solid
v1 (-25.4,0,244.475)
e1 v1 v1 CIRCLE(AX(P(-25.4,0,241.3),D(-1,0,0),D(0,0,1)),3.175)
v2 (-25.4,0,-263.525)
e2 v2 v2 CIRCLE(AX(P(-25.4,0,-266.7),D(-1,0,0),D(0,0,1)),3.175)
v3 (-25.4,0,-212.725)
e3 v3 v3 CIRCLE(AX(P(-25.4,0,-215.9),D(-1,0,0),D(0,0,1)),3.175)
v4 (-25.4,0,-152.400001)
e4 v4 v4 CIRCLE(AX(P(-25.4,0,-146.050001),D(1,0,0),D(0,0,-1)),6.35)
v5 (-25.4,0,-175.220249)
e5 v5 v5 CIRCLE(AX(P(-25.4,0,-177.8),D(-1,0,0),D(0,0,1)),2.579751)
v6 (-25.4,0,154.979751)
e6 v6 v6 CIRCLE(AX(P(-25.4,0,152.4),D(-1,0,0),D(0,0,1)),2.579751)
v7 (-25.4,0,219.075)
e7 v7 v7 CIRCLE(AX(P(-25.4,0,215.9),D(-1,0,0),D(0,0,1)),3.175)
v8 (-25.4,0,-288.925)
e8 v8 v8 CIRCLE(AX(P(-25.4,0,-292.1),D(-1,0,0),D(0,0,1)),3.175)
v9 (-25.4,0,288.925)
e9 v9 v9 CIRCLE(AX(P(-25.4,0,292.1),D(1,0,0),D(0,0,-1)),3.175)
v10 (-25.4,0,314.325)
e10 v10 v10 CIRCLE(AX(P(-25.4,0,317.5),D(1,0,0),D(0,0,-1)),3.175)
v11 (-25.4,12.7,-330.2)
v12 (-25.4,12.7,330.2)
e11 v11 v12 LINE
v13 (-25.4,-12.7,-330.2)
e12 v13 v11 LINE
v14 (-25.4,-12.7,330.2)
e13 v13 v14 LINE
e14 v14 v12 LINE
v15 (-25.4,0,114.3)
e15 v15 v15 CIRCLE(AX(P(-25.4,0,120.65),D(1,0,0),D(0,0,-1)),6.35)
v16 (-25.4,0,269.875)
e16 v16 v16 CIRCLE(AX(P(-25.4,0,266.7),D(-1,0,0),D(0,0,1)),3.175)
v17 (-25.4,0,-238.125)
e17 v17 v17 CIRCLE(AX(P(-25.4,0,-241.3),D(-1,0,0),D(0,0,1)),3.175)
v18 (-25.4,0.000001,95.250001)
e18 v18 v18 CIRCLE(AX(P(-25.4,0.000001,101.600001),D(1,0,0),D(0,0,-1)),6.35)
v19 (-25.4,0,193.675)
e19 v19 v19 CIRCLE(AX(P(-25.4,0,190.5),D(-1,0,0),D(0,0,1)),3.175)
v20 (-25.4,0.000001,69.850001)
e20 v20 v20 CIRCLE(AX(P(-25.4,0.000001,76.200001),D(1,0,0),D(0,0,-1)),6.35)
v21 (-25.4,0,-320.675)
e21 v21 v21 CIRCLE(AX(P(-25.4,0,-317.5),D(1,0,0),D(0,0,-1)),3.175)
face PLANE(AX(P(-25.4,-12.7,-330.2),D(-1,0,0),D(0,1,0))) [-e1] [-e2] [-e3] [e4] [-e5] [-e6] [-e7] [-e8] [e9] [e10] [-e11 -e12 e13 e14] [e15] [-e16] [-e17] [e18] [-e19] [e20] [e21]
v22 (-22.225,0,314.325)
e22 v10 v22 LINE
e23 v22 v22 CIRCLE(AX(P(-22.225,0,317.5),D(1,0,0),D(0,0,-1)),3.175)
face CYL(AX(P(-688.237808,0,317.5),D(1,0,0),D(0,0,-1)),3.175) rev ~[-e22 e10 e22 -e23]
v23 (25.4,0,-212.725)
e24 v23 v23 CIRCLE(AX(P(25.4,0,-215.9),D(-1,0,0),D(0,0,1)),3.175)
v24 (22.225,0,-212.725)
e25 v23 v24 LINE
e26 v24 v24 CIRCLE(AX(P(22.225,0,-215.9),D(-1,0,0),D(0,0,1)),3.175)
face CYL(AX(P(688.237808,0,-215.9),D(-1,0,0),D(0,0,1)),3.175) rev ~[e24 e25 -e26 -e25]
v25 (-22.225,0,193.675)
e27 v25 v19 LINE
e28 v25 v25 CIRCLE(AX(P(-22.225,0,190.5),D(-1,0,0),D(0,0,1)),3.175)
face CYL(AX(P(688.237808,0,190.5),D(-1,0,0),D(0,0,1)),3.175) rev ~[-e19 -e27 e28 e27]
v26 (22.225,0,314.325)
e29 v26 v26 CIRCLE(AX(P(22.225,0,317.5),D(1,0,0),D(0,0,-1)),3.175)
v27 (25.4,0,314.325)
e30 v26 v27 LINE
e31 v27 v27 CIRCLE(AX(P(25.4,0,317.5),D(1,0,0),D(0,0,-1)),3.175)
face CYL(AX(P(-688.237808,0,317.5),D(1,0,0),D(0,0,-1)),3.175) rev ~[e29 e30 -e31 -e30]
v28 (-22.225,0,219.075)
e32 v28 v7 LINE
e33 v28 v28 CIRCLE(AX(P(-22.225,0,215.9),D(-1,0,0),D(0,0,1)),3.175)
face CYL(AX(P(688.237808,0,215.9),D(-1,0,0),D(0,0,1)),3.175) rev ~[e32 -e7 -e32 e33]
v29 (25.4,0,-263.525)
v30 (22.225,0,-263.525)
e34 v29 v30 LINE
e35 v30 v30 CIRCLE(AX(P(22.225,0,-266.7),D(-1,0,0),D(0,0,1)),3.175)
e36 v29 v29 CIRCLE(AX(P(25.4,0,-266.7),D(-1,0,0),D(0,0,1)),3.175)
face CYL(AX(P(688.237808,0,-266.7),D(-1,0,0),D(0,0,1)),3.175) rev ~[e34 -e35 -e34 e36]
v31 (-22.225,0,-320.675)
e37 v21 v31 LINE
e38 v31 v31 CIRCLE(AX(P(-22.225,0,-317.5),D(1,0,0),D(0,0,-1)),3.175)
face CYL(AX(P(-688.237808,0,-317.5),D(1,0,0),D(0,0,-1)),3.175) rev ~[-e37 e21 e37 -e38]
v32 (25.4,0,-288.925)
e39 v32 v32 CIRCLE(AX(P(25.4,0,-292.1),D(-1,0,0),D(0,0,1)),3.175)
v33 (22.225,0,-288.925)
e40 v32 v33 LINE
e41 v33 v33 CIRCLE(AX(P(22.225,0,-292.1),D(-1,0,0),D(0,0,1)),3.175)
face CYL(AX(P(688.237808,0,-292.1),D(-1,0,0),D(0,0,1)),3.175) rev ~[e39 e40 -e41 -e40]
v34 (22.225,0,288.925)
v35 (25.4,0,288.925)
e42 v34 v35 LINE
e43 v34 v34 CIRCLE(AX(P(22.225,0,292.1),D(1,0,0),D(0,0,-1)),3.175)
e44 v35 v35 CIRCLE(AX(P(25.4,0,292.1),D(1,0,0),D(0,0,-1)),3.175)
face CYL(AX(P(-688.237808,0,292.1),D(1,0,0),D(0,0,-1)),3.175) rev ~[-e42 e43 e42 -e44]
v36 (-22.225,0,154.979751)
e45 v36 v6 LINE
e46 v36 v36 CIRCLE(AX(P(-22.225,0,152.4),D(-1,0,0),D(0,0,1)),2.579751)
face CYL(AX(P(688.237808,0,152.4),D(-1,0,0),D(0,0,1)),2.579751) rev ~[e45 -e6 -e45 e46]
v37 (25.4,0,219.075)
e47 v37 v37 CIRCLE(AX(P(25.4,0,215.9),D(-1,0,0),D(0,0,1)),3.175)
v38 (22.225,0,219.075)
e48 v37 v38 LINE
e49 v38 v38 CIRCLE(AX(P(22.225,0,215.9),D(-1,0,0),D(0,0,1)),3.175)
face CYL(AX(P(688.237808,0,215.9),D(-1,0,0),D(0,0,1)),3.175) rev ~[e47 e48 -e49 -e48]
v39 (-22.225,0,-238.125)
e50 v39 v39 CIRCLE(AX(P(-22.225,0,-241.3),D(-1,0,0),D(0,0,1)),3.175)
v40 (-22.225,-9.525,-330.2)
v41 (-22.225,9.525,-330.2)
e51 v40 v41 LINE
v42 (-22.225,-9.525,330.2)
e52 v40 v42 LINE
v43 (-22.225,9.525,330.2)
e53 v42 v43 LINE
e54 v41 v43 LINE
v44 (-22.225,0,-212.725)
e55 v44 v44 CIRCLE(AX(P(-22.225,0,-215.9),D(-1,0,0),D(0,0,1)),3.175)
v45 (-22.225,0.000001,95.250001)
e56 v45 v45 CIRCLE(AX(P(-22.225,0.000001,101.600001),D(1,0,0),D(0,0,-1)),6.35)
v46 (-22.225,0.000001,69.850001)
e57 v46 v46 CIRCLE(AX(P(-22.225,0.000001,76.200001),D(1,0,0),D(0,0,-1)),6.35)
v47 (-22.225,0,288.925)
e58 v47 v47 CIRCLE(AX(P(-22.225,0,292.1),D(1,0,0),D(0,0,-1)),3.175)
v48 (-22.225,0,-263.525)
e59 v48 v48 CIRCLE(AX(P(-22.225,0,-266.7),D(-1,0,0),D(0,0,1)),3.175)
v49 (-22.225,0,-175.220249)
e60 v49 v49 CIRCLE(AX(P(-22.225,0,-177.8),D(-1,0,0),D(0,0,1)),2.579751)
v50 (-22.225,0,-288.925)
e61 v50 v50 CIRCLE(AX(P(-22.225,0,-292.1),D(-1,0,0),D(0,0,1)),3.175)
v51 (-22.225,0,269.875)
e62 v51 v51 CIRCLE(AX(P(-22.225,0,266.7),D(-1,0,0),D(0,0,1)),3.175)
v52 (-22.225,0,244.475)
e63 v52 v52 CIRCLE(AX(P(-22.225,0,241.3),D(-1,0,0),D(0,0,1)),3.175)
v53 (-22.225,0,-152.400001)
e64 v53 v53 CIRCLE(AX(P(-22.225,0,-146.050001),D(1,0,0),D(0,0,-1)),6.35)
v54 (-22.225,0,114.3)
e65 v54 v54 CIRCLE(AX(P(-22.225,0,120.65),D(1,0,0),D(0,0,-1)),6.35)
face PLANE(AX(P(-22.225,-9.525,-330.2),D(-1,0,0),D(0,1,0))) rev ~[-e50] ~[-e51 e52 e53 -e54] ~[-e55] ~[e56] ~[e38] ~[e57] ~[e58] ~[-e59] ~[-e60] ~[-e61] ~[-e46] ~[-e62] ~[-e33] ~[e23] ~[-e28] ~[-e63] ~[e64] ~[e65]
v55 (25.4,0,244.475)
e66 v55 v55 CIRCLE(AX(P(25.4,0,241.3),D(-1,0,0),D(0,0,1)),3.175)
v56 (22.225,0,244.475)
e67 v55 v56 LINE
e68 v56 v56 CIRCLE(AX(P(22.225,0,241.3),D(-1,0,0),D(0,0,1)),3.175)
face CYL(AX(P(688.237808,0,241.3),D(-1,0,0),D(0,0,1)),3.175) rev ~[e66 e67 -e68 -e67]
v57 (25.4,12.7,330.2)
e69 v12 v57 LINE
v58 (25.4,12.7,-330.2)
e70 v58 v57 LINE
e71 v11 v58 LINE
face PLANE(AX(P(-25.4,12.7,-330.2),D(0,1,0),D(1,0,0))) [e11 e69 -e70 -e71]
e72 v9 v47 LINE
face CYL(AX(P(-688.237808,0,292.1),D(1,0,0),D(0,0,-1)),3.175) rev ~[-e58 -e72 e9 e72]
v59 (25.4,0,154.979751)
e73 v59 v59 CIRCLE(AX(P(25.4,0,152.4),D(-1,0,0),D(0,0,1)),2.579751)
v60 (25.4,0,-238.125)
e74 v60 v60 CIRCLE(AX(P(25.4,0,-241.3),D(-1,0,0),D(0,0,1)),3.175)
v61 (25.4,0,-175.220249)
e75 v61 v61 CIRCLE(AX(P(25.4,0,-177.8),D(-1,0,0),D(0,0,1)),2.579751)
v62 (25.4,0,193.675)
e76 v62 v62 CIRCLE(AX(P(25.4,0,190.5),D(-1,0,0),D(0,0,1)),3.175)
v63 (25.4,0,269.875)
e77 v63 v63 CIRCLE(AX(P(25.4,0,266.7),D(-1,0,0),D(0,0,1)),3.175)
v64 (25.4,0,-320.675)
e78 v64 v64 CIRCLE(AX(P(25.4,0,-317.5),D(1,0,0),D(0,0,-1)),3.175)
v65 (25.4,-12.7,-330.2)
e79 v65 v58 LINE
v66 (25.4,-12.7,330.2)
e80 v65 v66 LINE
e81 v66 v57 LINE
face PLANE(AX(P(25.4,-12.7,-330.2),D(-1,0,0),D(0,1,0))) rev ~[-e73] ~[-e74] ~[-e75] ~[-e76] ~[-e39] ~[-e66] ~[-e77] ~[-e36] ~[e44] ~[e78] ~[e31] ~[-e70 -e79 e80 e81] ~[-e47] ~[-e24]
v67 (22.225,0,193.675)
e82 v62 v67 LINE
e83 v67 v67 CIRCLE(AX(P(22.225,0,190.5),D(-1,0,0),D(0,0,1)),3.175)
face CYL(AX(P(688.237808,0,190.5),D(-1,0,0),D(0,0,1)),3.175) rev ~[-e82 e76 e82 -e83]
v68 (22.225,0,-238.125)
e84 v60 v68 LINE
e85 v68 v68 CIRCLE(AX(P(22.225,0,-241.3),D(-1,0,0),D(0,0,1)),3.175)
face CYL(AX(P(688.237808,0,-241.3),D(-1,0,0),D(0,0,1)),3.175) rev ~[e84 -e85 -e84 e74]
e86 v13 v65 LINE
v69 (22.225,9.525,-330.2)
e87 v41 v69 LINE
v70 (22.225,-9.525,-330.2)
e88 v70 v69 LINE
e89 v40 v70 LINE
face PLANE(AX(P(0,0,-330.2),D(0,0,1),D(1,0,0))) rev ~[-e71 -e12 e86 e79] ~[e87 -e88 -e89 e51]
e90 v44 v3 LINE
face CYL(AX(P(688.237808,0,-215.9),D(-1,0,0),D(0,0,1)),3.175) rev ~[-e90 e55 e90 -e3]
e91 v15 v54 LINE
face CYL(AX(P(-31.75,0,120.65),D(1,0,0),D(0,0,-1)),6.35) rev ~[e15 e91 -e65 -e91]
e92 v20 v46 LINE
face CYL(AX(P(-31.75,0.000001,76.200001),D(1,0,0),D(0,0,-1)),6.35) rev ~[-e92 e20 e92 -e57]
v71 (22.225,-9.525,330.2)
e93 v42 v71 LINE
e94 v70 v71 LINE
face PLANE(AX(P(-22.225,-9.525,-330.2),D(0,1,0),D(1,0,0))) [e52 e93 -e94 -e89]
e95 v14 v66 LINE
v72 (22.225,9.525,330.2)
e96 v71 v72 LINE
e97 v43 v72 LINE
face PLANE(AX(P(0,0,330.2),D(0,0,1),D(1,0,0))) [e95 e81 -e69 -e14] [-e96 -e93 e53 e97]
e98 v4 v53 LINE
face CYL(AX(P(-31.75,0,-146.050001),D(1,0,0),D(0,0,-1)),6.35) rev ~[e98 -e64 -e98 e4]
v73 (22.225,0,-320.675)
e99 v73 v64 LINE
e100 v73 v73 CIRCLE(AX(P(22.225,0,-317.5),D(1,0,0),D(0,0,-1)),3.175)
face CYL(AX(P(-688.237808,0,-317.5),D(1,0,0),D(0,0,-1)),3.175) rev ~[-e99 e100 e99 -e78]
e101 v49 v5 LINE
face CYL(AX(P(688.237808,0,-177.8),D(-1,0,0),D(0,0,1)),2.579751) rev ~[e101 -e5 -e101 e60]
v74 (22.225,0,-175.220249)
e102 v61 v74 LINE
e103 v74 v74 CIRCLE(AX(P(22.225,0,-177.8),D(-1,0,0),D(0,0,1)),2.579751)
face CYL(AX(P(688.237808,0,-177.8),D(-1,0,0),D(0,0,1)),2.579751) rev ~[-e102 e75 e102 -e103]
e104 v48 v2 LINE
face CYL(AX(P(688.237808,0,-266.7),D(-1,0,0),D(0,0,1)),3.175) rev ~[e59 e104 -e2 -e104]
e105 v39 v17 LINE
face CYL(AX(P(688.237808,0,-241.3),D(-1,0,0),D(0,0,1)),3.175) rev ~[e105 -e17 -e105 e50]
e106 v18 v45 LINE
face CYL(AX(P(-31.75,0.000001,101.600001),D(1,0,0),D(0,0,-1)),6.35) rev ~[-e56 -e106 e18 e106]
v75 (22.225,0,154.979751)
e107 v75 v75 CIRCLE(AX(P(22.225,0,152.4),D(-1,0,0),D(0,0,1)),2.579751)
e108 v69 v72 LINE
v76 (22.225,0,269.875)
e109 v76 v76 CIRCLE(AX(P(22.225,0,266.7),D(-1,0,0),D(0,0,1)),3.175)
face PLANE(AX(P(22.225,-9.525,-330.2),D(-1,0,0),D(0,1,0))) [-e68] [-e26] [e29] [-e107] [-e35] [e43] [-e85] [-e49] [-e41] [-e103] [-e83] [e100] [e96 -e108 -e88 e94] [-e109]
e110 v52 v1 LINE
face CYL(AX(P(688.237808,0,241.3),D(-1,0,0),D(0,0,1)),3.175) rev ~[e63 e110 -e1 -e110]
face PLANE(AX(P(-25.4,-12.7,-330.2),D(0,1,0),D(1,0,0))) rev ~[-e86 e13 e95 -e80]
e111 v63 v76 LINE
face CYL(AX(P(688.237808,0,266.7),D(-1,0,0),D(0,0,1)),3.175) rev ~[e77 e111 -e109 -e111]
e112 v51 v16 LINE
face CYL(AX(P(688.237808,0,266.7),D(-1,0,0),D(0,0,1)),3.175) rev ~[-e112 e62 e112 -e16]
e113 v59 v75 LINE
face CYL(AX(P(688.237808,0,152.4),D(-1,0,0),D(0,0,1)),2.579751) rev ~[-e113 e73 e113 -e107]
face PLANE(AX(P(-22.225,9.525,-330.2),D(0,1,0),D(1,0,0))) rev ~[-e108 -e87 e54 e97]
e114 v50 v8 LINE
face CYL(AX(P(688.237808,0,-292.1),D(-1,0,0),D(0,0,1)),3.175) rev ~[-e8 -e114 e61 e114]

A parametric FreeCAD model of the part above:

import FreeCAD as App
import Part
import Sketcher

V = App.Vector
Q = App.Units.Quantity

doc = App.newDocument("Part")
body = doc.addObject("PartDesign::Body", "Body")

sketch1 = doc.addObject("Sketcher::SketchObject", "Sketch")
body.addObject(sketch1)
sketch1.AttachmentSupport = (doc.XY_Plane, [""])
sketch1.MapMode = "FlatFace"
sketch1.addGeometry(Part.LineSegment(V(-25, 13, 0), V(-25, -13, 0)), False)
sketch1.addGeometry(Part.LineSegment(V(-25, -13, 0), V(25, -13, 0)), False)
sketch1.addGeometry(Part.LineSegment(V(25, -13, 0), V(25, 13, 0)), False)
sketch1.addGeometry(Part.LineSegment(V(25, 13, 0), V(-25, 13, 0)), False)
sketch1.addGeometry(Part.LineSegment(V(22, -10, 0), V(-22, -10, 0)), False)
sketch1.addGeometry(Part.LineSegment(V(-22, -10, 0), V(-22, 10, 0)), False)
sketch1.addGeometry(Part.LineSegment(V(-22, 10, 0), V(22, 10, 0)), False)
sketch1.addGeometry(Part.LineSegment(V(22, 10, 0), V(22, -10, 0)), False)
sketch1.addConstraint(Sketcher.Constraint("Coincident", 0, 2, 1, 1))
sketch1.addConstraint(Sketcher.Constraint("Coincident", 1, 2, 2, 1))
sketch1.addConstraint(Sketcher.Constraint("Coincident", 2, 2, 3, 1))
sketch1.addConstraint(Sketcher.Constraint("Coincident", 3, 2, 0, 1))
sketch1.addConstraint(Sketcher.Constraint("Coincident", 4, 2, 5, 1))
sketch1.addConstraint(Sketcher.Constraint("Coincident", 5, 2, 6, 1))
sketch1.addConstraint(Sketcher.Constraint("Coincident", 6, 2, 7, 1))
sketch1.addConstraint(Sketcher.Constraint("Coincident", 7, 2, 4, 1))
sketch1.addConstraint(Sketcher.Constraint("Vertical", 0))
sketch1.addConstraint(Sketcher.Constraint("Horizontal", 1))
sketch1.addConstraint(Sketcher.Constraint("Vertical", 2))
sketch1.addConstraint(Sketcher.Constraint("Horizontal", 3))
sketch1.addConstraint(Sketcher.Constraint("Horizontal", 4))
sketch1.addConstraint(Sketcher.Constraint("Vertical", 5))
sketch1.addConstraint(Sketcher.Constraint("Horizontal", 6))
sketch1.addConstraint(Sketcher.Constraint("Vertical", 7))
sketch1.addConstraint(Sketcher.Constraint("Symmetric", 0, 2, 2, 2, -1, 1))
sketch1.addConstraint(Sketcher.Constraint("Symmetric", 4, 2, 6, 2, -1, 1))
sketch1.addConstraint(Sketcher.Constraint("DistanceX", 1, 1, 1, 2, Q("2 in")))
sketch1.addConstraint(Sketcher.Constraint("DistanceY", 0, 2, 0, 1, Q("1 in")))
sketch1.addConstraint(Sketcher.Constraint("DistanceX", 4, 2, 4, 1, Q("1.75 in")))
sketch1.addConstraint(Sketcher.Constraint("DistanceY", 5, 1, 5, 2, Q("0.75 in")))
pad1 = doc.addObject("PartDesign::Pad", "Pad")
body.addObject(pad1)
pad1.Profile = sketch1
pad1.Type = "TwoLengths"
pad1.Length = Q("13 in")
pad1.Length2 = Q("13 in")

sketch2 = doc.addObject("Sketcher::SketchObject", "Sketch001")
body.addObject(sketch2)
sketch2.AttachmentSupport = (doc.YZ_Plane, [""])
sketch2.MapMode = "FlatFace"
sketch2.AttachmentOffset = App.Placement(V(0, 0, -1 * 25.4), App.Rotation())
sketch2.addGeometry(Part.Circle(V(0, -317.5, 0), V(0, 0, 1), 3.2), False)
sketch2.addConstraint(Sketcher.Constraint("PointOnObject", 0, 3, -2))
sketch2.addConstraint(Sketcher.Constraint("Diameter", 0, Q("0.25 in")))
sketch2.addConstraint(Sketcher.Constraint("DistanceY", 0, 3, -1, 1, Q("12.5 in")))
doc.recompute()
hole = doc.addObject("PartDesign::Hole", "Hole")
body.addObject(hole)
hole.Profile = sketch2
hole.ThreadType = "None"
hole.Diameter = Q("0.25 in")
hole.DepthType = "ThroughAll"
hole.Reversed = True

sketch3 = doc.addObject("Sketcher::SketchObject", "Sketch002")
body.addObject(sketch3)
sketch3.AttachmentSupport = (doc.YZ_Plane, [""])
sketch3.MapMode = "FlatFace"
sketch3.AttachmentOffset = App.Placement(V(0, 0, -1 * 25.4), App.Rotation())
sketch3.addGeometry(Part.Circle(V(0, 292.1, 0), V(0, 0, 1), 3.2), False)
sketch3.addGeometry(Part.Circle(V(0, 317.5, 0), V(0, 0, 1), 3.2), False)
sketch3.addConstraint(Sketcher.Constraint("Equal", 0, 1))
sketch3.addConstraint(Sketcher.Constraint("PointOnObject", 0, 3, -2))
sketch3.addConstraint(Sketcher.Constraint("PointOnObject", 1, 3, -2))
sketch3.addConstraint(Sketcher.Constraint("Diameter", 0, Q("0.25 in")))
sketch3.addConstraint(Sketcher.Constraint("DistanceY", 0, 3, 1, 3, Q("1 in")))
sketch3.addConstraint(Sketcher.Constraint("DistanceY", -1, 1, 0, 3, Q("11.5 in")))
doc.recompute()
hole2 = doc.addObject("PartDesign::Hole", "Hole001")
body.addObject(hole2)
hole2.Profile = sketch3
hole2.ThreadType = "None"
hole2.Diameter = Q("0.25 in")
hole2.DepthType = "ThroughAll"
hole2.Reversed = True

sketch4 = doc.addObject("Sketcher::SketchObject", "Sketch003")
body.addObject(sketch4)
sketch4.AttachmentSupport = (doc.YZ_Plane, [""])
sketch4.MapMode = "FlatFace"
sketch4.AttachmentOffset = App.Placement(V(0, 0, 1 * 25.4), App.Rotation())
sketch4.addGeometry(Part.Circle(V(0, -292.1, 0), V(0, 0, 1), 3.2), False)
sketch4.addGeometry(Part.Circle(V(0, -266.7, 0), V(0, 0, 1), 3.2), False)
sketch4.addConstraint(Sketcher.Constraint("Equal", 0, 1))
sketch4.addConstraint(Sketcher.Constraint("PointOnObject", 0, 3, -2))
sketch4.addConstraint(Sketcher.Constraint("PointOnObject", 1, 3, -2))
sketch4.addConstraint(Sketcher.Constraint("Diameter", 0, Q("0.25 in")))
sketch4.addConstraint(Sketcher.Constraint("DistanceY", 0, 3, 1, 3, Q("1 in")))
sketch4.addConstraint(Sketcher.Constraint("DistanceY", 0, 3, -1, 1, Q("11.5 in")))
doc.recompute()
hole3 = doc.addObject("PartDesign::Hole", "Hole002")
body.addObject(hole3)
hole3.Profile = sketch4
hole3.ThreadType = "None"
hole3.Diameter = Q("0.25 in")
hole3.DepthType = "ThroughAll"

sketch5 = doc.addObject("Sketcher::SketchObject", "Sketch004")
body.addObject(sketch5)
sketch5.AttachmentSupport = (doc.YZ_Plane, [""])
sketch5.MapMode = "FlatFace"
sketch5.AttachmentOffset = App.Placement(V(0, 0, 1 * 25.4), App.Rotation())
sketch5.addGeometry(Part.Circle(V(0, -215.9, 0), V(0, 0, 1), 3.2), False)
sketch5.addGeometry(Part.Circle(V(0, -241.3, 0), V(0, 0, 1), 3.2), False)
sketch5.addConstraint(Sketcher.Constraint("Equal", 0, 1))
sketch5.addConstraint(Sketcher.Constraint("PointOnObject", 0, 3, -2))
sketch5.addConstraint(Sketcher.Constraint("PointOnObject", 1, 3, -2))
sketch5.addConstraint(Sketcher.Constraint("Diameter", 0, Q("0.25 in")))
sketch5.addConstraint(Sketcher.Constraint("DistanceY", 1, 3, 0, 3, Q("1 in")))
sketch5.addConstraint(Sketcher.Constraint("DistanceY", 0, 3, -1, 1, Q("8.5 in")))
doc.recompute()
hole4 = doc.addObject("PartDesign::Hole", "Hole003")
body.addObject(hole4)
hole4.Profile = sketch5
hole4.ThreadType = "None"
hole4.Diameter = Q("0.25 in")
hole4.DepthType = "ThroughAll"

sketch6 = doc.addObject("Sketcher::SketchObject", "Sketch005")
body.addObject(sketch6)
sketch6.AttachmentSupport = (doc.YZ_Plane, [""])
sketch6.MapMode = "FlatFace"
sketch6.AttachmentOffset = App.Placement(V(0, 0, 1 * 25.4), App.Rotation())
sketch6.addGeometry(Part.Circle(V(0, 190.5, 0), V(0, 0, 1), 3.2), False)
sketch6.addGeometry(Part.Circle(V(0, 215.9, 0), V(0, 0, 1), 3.2), False)
sketch6.addConstraint(Sketcher.Constraint("Equal", 0, 1))
sketch6.addConstraint(Sketcher.Constraint("PointOnObject", 0, 3, -2))
sketch6.addConstraint(Sketcher.Constraint("PointOnObject", 1, 3, -2))
sketch6.addConstraint(Sketcher.Constraint("Diameter", 0, Q("0.25 in")))
sketch6.addConstraint(Sketcher.Constraint("DistanceY", 0, 3, 1, 3, Q("1 in")))
sketch6.addConstraint(Sketcher.Constraint("DistanceY", -1, 1, 0, 3, Q("7.5 in")))
doc.recompute()
hole5 = doc.addObject("PartDesign::Hole", "Hole004")
body.addObject(hole5)
hole5.Profile = sketch6
hole5.ThreadType = "None"
hole5.Diameter = Q("0.25 in")
hole5.DepthType = "ThroughAll"

sketch7 = doc.addObject("Sketcher::SketchObject", "Sketch006")
body.addObject(sketch7)
sketch7.AttachmentSupport = (doc.YZ_Plane, [""])
sketch7.MapMode = "FlatFace"
sketch7.AttachmentOffset = App.Placement(V(0, 0, 1 * 25.4), App.Rotation())
sketch7.addGeometry(Part.Circle(V(0, 266.7, 0), V(0, 0, 1), 3.2), False)
sketch7.addGeometry(Part.Circle(V(0, 241.3, 0), V(0, 0, 1), 3.2), False)
sketch7.addConstraint(Sketcher.Constraint("Equal", 0, 1))
sketch7.addConstraint(Sketcher.Constraint("PointOnObject", 0, 3, -2))
sketch7.addConstraint(Sketcher.Constraint("PointOnObject", 1, 3, -2))
sketch7.addConstraint(Sketcher.Constraint("Diameter", 0, Q("0.25 in")))
sketch7.addConstraint(Sketcher.Constraint("DistanceY", 1, 3, 0, 3, Q("1 in")))
sketch7.addConstraint(Sketcher.Constraint("DistanceY", -1, 1, 0, 3, Q("10.5 in")))
doc.recompute()
hole6 = doc.addObject("PartDesign::Hole", "Hole005")
body.addObject(hole6)
hole6.Profile = sketch7
hole6.ThreadType = "None"
hole6.Diameter = Q("0.25 in")
hole6.DepthType = "ThroughAll"

sketch8 = doc.addObject("Sketcher::SketchObject", "Sketch007")
body.addObject(sketch8)
sketch8.AttachmentSupport = (doc.YZ_Plane, [""])
sketch8.MapMode = "FlatFace"
sketch8.AttachmentOffset = App.Placement(V(0, 0, 1 * 25.4), App.Rotation())
sketch8.addGeometry(Part.Circle(V(0, 152.4, 0), V(0, 0, 1), 2.6), False)
sketch8.addGeometry(Part.Circle(V(0, -177.8, 0), V(0, 0, 1), 2.6), False)
sketch8.addConstraint(Sketcher.Constraint("Equal", 0, 1))
sketch8.addConstraint(Sketcher.Constraint("PointOnObject", 0, 3, -2))
sketch8.addConstraint(Sketcher.Constraint("PointOnObject", 1, 3, -2))
sketch8.addConstraint(Sketcher.Constraint("DistanceY", -1, 1, 0, 3, Q("6 in")))
sketch8.addConstraint(Sketcher.Constraint("DistanceY", 1, 3, -1, 1, Q("7 in")))
sketch8.addConstraint(Sketcher.Constraint("Diameter", 0, 5.159502))
doc.recompute()
hole7 = doc.addObject("PartDesign::Hole", "Hole006")
body.addObject(hole7)
hole7.Profile = sketch8
hole7.ThreadType = "None"
hole7.Diameter = 5.159502
hole7.DepthType = "ThroughAll"

sketch9 = doc.addObject("Sketcher::SketchObject", "Sketch008")
body.addObject(sketch9)
sketch9.AttachmentSupport = (doc.YZ_Plane, [""])
sketch9.MapMode = "FlatFace"
sketch9.AttachmentOffset = App.Placement(V(0, 0, -1 * 25.4), App.Rotation())
sketch9.addGeometry(Part.Circle(V(0, -146, 0), V(0, 0, 1), 6), False)
sketch9.addGeometry(Part.Circle(V(0, 121, 0), V(0, 0, 1), 6), False)
sketch9.addGeometry(Part.Circle(V(0, 102, 0), V(0, 0, 1), 6), False)
sketch9.addGeometry(Part.Circle(V(0, 76, 0), V(0, 0, 1), 6), False)
sketch9.addConstraint(Sketcher.Constraint("Equal", 0, 1))
sketch9.addConstraint(Sketcher.Constraint("Equal", 1, 2))
sketch9.addConstraint(Sketcher.Constraint("Equal", 2, 3))
sketch9.addConstraint(Sketcher.Constraint("PointOnObject", 0, 3, -2))
sketch9.addConstraint(Sketcher.Constraint("PointOnObject", 1, 3, -2))
sketch9.addConstraint(Sketcher.Constraint("PointOnObject", 2, 3, -2))
sketch9.addConstraint(Sketcher.Constraint("PointOnObject", 3, 3, -2))
sketch9.addConstraint(Sketcher.Constraint("Diameter", 0, Q("0.5 in")))
sketch9.addConstraint(Sketcher.Constraint("DistanceY", -1, 1, 2, 3, Q("4.0000001 in")))
sketch9.addConstraint(Sketcher.Constraint("DistanceY", -1, 1, 3, 3, Q("3.0000001 in")))
sketch9.addConstraint(Sketcher.Constraint("DistanceY", 0, 3, 1, 3, Q("10.5 in")))
sketch9.addConstraint(Sketcher.Constraint("DistanceY", 0, 3, -1, 1, Q("5.75 in")))
doc.recompute()
hole8 = doc.addObject("PartDesign::Hole", "Hole007")
body.addObject(hole8)
hole8.Profile = sketch9
hole8.ThreadType = "None"
hole8.Diameter = Q("0.5 in")
hole8.DepthType = "Dimension"
hole8.Depth = Q("0.25 in")
hole8.DrillPoint = "Angled"
hole8.DrillPointAngle = 118
hole8.Reversed = True

doc.recompute()
